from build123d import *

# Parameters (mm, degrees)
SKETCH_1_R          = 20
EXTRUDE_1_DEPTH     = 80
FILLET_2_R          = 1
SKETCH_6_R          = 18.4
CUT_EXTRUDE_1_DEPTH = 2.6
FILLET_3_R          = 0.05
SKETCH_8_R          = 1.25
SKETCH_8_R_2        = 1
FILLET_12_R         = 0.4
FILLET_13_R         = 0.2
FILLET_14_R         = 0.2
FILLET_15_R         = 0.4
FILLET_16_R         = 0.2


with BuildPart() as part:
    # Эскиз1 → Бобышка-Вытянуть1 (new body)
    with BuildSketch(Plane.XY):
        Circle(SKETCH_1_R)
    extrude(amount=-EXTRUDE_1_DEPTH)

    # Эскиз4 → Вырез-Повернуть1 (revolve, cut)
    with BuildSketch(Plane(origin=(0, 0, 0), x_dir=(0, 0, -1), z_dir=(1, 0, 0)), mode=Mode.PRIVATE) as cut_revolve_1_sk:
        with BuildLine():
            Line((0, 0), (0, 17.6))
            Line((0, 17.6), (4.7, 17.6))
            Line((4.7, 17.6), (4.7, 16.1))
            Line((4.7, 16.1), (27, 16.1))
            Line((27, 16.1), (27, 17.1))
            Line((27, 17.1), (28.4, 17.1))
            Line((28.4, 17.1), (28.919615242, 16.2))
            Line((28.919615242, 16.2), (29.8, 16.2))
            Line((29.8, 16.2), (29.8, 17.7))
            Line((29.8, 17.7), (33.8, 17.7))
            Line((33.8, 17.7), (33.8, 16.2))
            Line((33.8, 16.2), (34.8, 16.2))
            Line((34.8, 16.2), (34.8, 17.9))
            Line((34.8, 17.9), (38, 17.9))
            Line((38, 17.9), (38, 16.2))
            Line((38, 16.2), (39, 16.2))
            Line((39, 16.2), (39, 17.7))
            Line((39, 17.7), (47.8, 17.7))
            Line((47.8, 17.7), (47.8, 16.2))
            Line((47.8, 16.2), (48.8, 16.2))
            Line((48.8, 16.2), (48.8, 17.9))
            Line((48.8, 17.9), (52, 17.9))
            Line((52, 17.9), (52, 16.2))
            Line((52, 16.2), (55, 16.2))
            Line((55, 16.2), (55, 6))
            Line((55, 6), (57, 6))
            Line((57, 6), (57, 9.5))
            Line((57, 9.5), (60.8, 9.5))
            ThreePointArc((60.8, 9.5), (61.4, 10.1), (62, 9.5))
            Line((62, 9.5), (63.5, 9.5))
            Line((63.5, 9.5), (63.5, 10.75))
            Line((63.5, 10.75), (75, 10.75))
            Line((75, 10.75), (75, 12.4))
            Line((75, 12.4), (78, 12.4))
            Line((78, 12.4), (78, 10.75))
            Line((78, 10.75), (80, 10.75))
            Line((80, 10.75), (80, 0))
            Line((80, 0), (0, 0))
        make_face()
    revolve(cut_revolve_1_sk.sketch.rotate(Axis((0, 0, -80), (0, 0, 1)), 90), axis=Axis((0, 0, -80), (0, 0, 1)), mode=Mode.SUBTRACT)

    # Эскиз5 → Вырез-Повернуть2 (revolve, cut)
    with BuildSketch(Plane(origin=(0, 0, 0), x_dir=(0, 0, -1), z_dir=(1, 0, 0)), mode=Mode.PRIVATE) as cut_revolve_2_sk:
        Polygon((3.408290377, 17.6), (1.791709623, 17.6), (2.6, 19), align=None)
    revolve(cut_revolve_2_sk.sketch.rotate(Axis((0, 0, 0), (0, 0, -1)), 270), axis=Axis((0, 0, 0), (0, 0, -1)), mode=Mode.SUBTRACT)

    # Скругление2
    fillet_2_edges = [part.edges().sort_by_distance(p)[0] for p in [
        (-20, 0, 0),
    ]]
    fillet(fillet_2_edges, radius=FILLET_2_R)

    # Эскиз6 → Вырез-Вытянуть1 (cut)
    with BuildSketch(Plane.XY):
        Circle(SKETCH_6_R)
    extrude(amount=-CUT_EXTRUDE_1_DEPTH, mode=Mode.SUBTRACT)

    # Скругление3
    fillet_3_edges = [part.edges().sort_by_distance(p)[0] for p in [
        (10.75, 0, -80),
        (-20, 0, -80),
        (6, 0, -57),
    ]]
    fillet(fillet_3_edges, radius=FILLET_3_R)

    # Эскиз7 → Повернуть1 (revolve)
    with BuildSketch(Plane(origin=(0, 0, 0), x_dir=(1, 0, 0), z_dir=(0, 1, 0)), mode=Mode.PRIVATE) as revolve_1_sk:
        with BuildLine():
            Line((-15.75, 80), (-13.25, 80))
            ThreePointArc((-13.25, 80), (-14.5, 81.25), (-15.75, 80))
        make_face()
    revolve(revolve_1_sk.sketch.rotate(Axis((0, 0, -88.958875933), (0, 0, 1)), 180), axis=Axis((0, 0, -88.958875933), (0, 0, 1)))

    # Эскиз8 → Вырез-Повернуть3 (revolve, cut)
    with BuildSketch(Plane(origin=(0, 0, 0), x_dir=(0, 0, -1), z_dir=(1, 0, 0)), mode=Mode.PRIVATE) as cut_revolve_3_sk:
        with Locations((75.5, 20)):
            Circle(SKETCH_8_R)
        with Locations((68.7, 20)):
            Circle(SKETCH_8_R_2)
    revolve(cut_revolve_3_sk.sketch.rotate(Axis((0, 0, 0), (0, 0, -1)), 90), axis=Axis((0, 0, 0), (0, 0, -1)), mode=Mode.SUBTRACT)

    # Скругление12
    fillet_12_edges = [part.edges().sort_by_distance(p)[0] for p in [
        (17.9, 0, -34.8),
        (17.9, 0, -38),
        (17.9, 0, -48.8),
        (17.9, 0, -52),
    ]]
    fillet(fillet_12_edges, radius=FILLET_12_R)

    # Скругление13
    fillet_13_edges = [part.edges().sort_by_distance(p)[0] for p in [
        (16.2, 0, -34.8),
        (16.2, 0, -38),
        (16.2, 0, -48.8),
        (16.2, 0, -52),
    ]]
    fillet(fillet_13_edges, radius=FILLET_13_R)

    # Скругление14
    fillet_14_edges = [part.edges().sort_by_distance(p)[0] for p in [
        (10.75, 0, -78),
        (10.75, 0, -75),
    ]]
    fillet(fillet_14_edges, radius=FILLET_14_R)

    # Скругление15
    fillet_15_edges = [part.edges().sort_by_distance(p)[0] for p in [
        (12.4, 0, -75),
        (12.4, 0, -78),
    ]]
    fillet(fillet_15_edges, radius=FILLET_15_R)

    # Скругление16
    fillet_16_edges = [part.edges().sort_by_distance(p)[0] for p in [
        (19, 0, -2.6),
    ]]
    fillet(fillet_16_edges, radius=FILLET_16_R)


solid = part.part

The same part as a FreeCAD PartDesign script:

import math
import FreeCAD as App
import Part
import Sketcher

V = App.Vector
Q = App.Units.Quantity


def edges_at(feature, points):
    """Names of the edges that pass closest to the given points."""
    edges = feature.Shape.Edges
    near = lambda p: min(range(len(edges)), key=lambda i: edges[i].distToShape(Part.Vertex(*p))[0])
    return sorted({f"Edge{near(p) + 1}" for p in points})


def add_polygon(sketch, points):
    """Adds a closed chain of lines whose ends are joined by coincident constraints."""
    first, n = sketch.GeometryCount, len(points)
    for a, b in zip(points, points[1:] + points[:1]):
        sketch.addGeometry(Part.LineSegment(App.Vector(*a, 0), App.Vector(*b, 0)), False)
    for i in range(n):
        sketch.addConstraint(Sketcher.Constraint("Coincident", first + i, 2, first + (i + 1) % n, 1))

doc = App.newDocument("Part")
body = doc.addObject("PartDesign::Body", "Body")

# Sketch on XY plane
sketch1 = doc.addObject("Sketcher::SketchObject", "Sketch")
body.addObject(sketch1)
sketch1.AttachmentSupport = (doc.XY_Plane, [""])
sketch1.MapMode = "FlatFace"
sketch1.addGeometry(Part.Circle(V(0, 0, 0), V(0, 0, 1), 20), False)
sketch1.addConstraint(Sketcher.Constraint("Coincident", 0, 3, -1, 1))
sketch1.addConstraint(Sketcher.Constraint("Diameter", 0, Q("40 mm")))
pad1 = doc.addObject("PartDesign::Pad", "Pad")
body.addObject(pad1)
pad1.Profile = sketch1
pad1.Length = 80
pad1.Reversed = True

# Sketch on YZ plane
sketch2 = doc.addObject("Sketcher::SketchObject", "Sketch001")
body.addObject(sketch2)
sketch2.AttachmentSupport = (doc.YZ_Plane, [""])
sketch2.MapMode = "FlatFace"
sketch2.addGeometry(Part.LineSegment(V(17.6, 0, 0), V(0, 0, 0)), False)
sketch2.addGeometry(Part.LineSegment(V(0, 0, 0), V(0, -80, 0)), False)
sketch2.addGeometry(Part.LineSegment(V(0, -80, 0), V(10.8, -80, 0)), False)
sketch2.addGeometry(Part.LineSegment(V(10.8, -80, 0), V(10.8, -78, 0)), False)
sketch2.addGeometry(Part.LineSegment(V(10.8, -78, 0), V(12.4, -78, 0)), False)
sketch2.addGeometry(Part.LineSegment(V(12.4, -78, 0), V(12.4, -75, 0)), False)
sketch2.addGeometry(Part.LineSegment(V(12.4, -75, 0), V(10.8, -75, 0)), False)
sketch2.addGeometry(Part.LineSegment(V(10.8, -75, 0), V(10.8, -63.5, 0)), False)
sketch2.addGeometry(Part.LineSegment(V(10.8, -63.5, 0), V(9.5, -63.5, 0)), False)
sketch2.addGeometry(Part.LineSegment(V(9.5, -63.5, 0), V(9.5, -62, 0)), False)
sketch2.addGeometry(Part.ArcOfCircle(Part.Circle(V(9.5, -61.4, 0), V(0, 0, 1), 0.6), math.radians(-90), math.radians(90)), False)
sketch2.addGeometry(Part.LineSegment(V(9.5, -60.8, 0), V(9.5, -57, 0)), False)
sketch2.addGeometry(Part.LineSegment(V(9.5, -57, 0), V(6, -57, 0)), False)
sketch2.addGeometry(Part.LineSegment(V(6, -57, 0), V(6, -55, 0)), False)
sketch2.addGeometry(Part.LineSegment(V(6, -55, 0), V(16.2, -55, 0)), False)
sketch2.addGeometry(Part.LineSegment(V(16.2, -55, 0), V(16.2, -52, 0)), False)
sketch2.addGeometry(Part.LineSegment(V(16.2, -52, 0), V(17.9, -52, 0)), False)
sketch2.addGeometry(Part.LineSegment(V(17.9, -52, 0), V(17.9, -48.8, 0)), False)
sketch2.addGeometry(Part.LineSegment(V(17.9, -48.8, 0), V(16.2, -48.8, 0)), False)
sketch2.addGeometry(Part.LineSegment(V(16.2, -48.8, 0), V(16.2, -47.8, 0)), False)
sketch2.addGeometry(Part.LineSegment(V(16.2, -47.8, 0), V(17.7, -47.8, 0)), False)
sketch2.addGeometry(Part.LineSegment(V(17.7, -47.8, 0), V(17.7, -39, 0)), False)
sketch2.addGeometry(Part.LineSegment(V(17.7, -39, 0), V(16.2, -39, 0)), False)
sketch2.addGeometry(Part.LineSegment(V(16.2, -39, 0), V(16.2, -38, 0)), False)
sketch2.addGeometry(Part.LineSegment(V(16.2, -38, 0), V(17.9, -38, 0)), False)
sketch2.addGeometry(Part.LineSegment(V(17.9, -38, 0), V(17.9, -34.8, 0)), False)
sketch2.addGeometry(Part.LineSegment(V(17.9, -34.8, 0), V(16.2, -34.8, 0)), False)
sketch2.addGeometry(Part.LineSegment(V(16.2, -34.8, 0), V(16.2, -33.8, 0)), False)
sketch2.addGeometry(Part.LineSegment(V(16.2, -33.8, 0), V(17.7, -33.8, 0)), False)
sketch2.addGeometry(Part.LineSegment(V(17.7, -33.8, 0), V(17.7, -29.8, 0)), False)
sketch2.addGeometry(Part.LineSegment(V(17.7, -29.8, 0), V(16.2, -29.8, 0)), False)
sketch2.addGeometry(Part.LineSegment(V(16.2, -29.8, 0), V(16.2, -28.9, 0)), False)
sketch2.addGeometry(Part.LineSegment(V(16.2, -28.9, 0), V(17.1, -28.4, 0)), False)
sketch2.addGeometry(Part.LineSegment(V(17.1, -28.4, 0), V(17.1, -27, 0)), False)
sketch2.addGeometry(Part.LineSegment(V(17.1, -27, 0), V(16.1, -27, 0)), False)
sketch2.addGeometry(Part.LineSegment(V(16.1, -27, 0), V(16.1, -4.7, 0)), False)
sketch2.addGeometry(Part.LineSegment(V(16.1, -4.7, 0), V(17.6, -4.7, 0)), False)
sketch2.addGeometry(Part.LineSegment(V(17.6, -4.7, 0), V(17.6, 0, 0)), False)
sketch2.addConstraint(Sketcher.Constraint("Coincident", 0, 2, 1, 1))
sketch2.addConstraint(Sketcher.Constraint("Coincident", 1, 2, 2, 1))
sketch2.addConstraint(Sketcher.Constraint("Coincident", 2, 2, 3, 1))
sketch2.addConstraint(Sketcher.Constraint("Coincident", 3, 2, 4, 1))
sketch2.addConstraint(Sketcher.Constraint("Coincident", 4, 2, 5, 1))
sketch2.addConstraint(Sketcher.Constraint("Coincident", 5, 2, 6, 1))
sketch2.addConstraint(Sketcher.Constraint("Coincident", 6, 2, 7, 1))
sketch2.addConstraint(Sketcher.Constraint("Coincident", 7, 2, 8, 1))
sketch2.addConstraint(Sketcher.Constraint("Coincident", 8, 2, 9, 1))
sketch2.addConstraint(Sketcher.Constraint("Coincident", 9, 2, 10, 1))
sketch2.addConstraint(Sketcher.Constraint("Coincident", 10, 2, 11, 1))
sketch2.addConstraint(Sketcher.Constraint("Coincident", 11, 2, 12, 1))
sketch2.addConstraint(Sketcher.Constraint("Coincident", 12, 2, 13, 1))
sketch2.addConstraint(Sketcher.Constraint("Coincident", 13, 2, 14, 1))
sketch2.addConstraint(Sketcher.Constraint("Coincident", 14, 2, 15, 1))
sketch2.addConstraint(Sketcher.Constraint("Coincident", 15, 2, 16, 1))
sketch2.addConstraint(Sketcher.Constraint("Coincident", 16, 2, 17, 1))
sketch2.addConstraint(Sketcher.Constraint("Coincident", 17, 2, 18, 1))
sketch2.addConstraint(Sketcher.Constraint("Coincident", 18, 2, 19, 1))
sketch2.addConstraint(Sketcher.Constraint("Coincident", 19, 2, 20, 1))
sketch2.addConstraint(Sketcher.Constraint("Coincident", 20, 2, 21, 1))
sketch2.addConstraint(Sketcher.Constraint("Coincident", 21, 2, 22, 1))
sketch2.addConstraint(Sketcher.Constraint("Coincident", 22, 2, 23, 1))
sketch2.addConstraint(Sketcher.Constraint("Coincident", 23, 2, 24, 1))
sketch2.addConstraint(Sketcher.Constraint("Coincident", 24, 2, 25, 1))
sketch2.addConstraint(Sketcher.Constraint("Coincident", 25, 2, 26, 1))
sketch2.addConstraint(Sketcher.Constraint("Coincident", 26, 2, 27, 1))
sketch2.addConstraint(Sketcher.Constraint("Coincident", 27, 2, 28, 1))
sketch2.addConstraint(Sketcher.Constraint("Coincident", 28, 2, 29, 1))
sketch2.addConstraint(Sketcher.Constraint("Coincident", 29, 2, 30, 1))
sketch2.addConstraint(Sketcher.Constraint("Coincident", 30, 2, 31, 1))
sketch2.addConstraint(Sketcher.Constraint("Coincident", 31, 2, 32, 1))
sketch2.addConstraint(Sketcher.Constraint("Coincident", 32, 2, 33, 1))
sketch2.addConstraint(Sketcher.Constraint("Coincident", 33, 2, 34, 1))
sketch2.addConstraint(Sketcher.Constraint("Coincident", 34, 2, 35, 1))
sketch2.addConstraint(Sketcher.Constraint("Coincident", 35, 2, 36, 1))
sketch2.addConstraint(Sketcher.Constraint("Coincident", 36, 2, 37, 1))
sketch2.addConstraint(Sketcher.Constraint("Coincident", 37, 2, 0, 1))
sketch2.addConstraint(Sketcher.Constraint("Horizontal", 0))
sketch2.addConstraint(Sketcher.Constraint("Vertical", 1))
sketch2.addConstraint(Sketcher.Constraint("Horizontal", 2))
sketch2.addConstraint(Sketcher.Constraint("Vertical", 3))
sketch2.addConstraint(Sketcher.Constraint("Horizontal", 4))
sketch2.addConstraint(Sketcher.Constraint("Vertical", 5))
sketch2.addConstraint(Sketcher.Constraint("Horizontal", 6))
sketch2.addConstraint(Sketcher.Constraint("Vertical", 7))
sketch2.addConstraint(Sketcher.Constraint("Horizontal", 8))
sketch2.addConstraint(Sketcher.Constraint("Vertical", 9))
sketch2.addConstraint(Sketcher.Constraint("Vertical", 11))
sketch2.addConstraint(Sketcher.Constraint("Horizontal", 12))
sketch2.addConstraint(Sketcher.Constraint("Vertical", 13))
sketch2.addConstraint(Sketcher.Constraint("Horizontal", 14))
sketch2.addConstraint(Sketcher.Constraint("Vertical", 15))
sketch2.addConstraint(Sketcher.Constraint("Horizontal", 16))
sketch2.addConstraint(Sketcher.Constraint("Vertical", 17))
sketch2.addConstraint(Sketcher.Constraint("Horizontal", 18))
sketch2.addConstraint(Sketcher.Constraint("Vertical", 19))
sketch2.addConstraint(Sketcher.Constraint("Horizontal", 20))
sketch2.addConstraint(Sketcher.Constraint("Vertical", 21))
sketch2.addConstraint(Sketcher.Constraint("Horizontal", 22))
sketch2.addConstraint(Sketcher.Constraint("Vertical", 23))
sketch2.addConstraint(Sketcher.Constraint("Horizontal", 24))
sketch2.addConstraint(Sketcher.Constraint("Vertical", 25))
sketch2.addConstraint(Sketcher.Constraint("Horizontal", 26))
sketch2.addConstraint(Sketcher.Constraint("Vertical", 27))
sketch2.addConstraint(Sketcher.Constraint("Horizontal", 28))
sketch2.addConstraint(Sketcher.Constraint("Vertical", 29))
sketch2.addConstraint(Sketcher.Constraint("Horizontal", 30))
sketch2.addConstraint(Sketcher.Constraint("Vertical", 31))
sketch2.addConstraint(Sketcher.Constraint("Vertical", 33))
sketch2.addConstraint(Sketcher.Constraint("Horizontal", 34))
sketch2.addConstraint(Sketcher.Constraint("Vertical", 35))
sketch2.addConstraint(Sketcher.Constraint("Horizontal", 36))
sketch2.addConstraint(Sketcher.Constraint("Vertical", 37))
sketch2.addConstraint(Sketcher.Constraint("Coincident", 0, 2, -1, 1))
sketch2.addConstraint(Sketcher.Constraint("Vertical", 3, 2, 6, 2))
sketch2.addConstraint(Sketcher.Constraint("Vertical", 10, 3, 8, 2))
sketch2.addConstraint(Sketcher.Constraint("Vertical", 9, 2, 10, 2))
sketch2.addConstraint(Sketcher.Constraint("Vertical", 15, 2, 18, 2))
sketch2.addConstraint(Sketcher.Constraint("Vertical", 19, 2, 22, 2))
sketch2.addConstraint(Sketcher.Constraint("Vertical", 17, 2, 24, 2))
sketch2.addConstraint(Sketcher.Constraint("Vertical", 23, 2, 26, 2))
sketch2.addConstraint(Sketcher.Constraint("Vertical", 21, 2, 28, 2))
sketch2.addConstraint(Sketcher.Constraint("Vertical", 27, 2, 30, 2))
sketch2.addConstraint(Sketcher.Constraint("Equal", 30, 36))
sketch2.addConstraint(Sketcher.Constraint("Equal", 36, 9))
sketch2.addConstraint(Sketcher.Constraint("Equal", 3, 13))
sketch2.addConstraint(Sketcher.Constraint("Equal", 5, 15))
sketch2.addConstraint(Sketcher.Constraint("Equal", 34, 19))
sketch2.addConstraint(Sketcher.Constraint("Equal", 19, 23))
sketch2.addConstraint(Sketcher.Constraint("Equal", 17, 25))
sketch2.addConstraint(Sketcher.Constraint("Equal", 23, 27))
sketch2.addConstraint(Sketcher.Constraint("Radius", 10, Q("0.6 mm")))
sketch2.addConstraint(Sketcher.Constraint("DistanceX", 34, 2, 34, 1, Q("1 mm")))
sketch2.addConstraint(Sketcher.Constraint("DistanceY", 1, 2, 1, 1, Q("80 mm")))
sketch2.addConstraint(Sketcher.Constraint("DistanceY", 3, 1, 3, 2, Q("2 mm")))
sketch2.addConstraint(Sketcher.Constraint("DistanceY", 5, 1, 5, 2, Q("3 mm")))
sketch2.addConstraint(Sketcher.Constraint("DistanceY", 29, 1, 29, 2, Q("4 mm")))
sketch2.addConstraint(Sketcher.Constraint("Angle", 32, Q("30 deg")))
sketch2.addConstraint(Sketcher.Constraint("DistanceX", 0, 2, 0, 1, Q("17.6 mm")))
sketch2.addConstraint(Sketcher.Constraint("DistanceX", 12, 2, 12, 1, Q("3.5 mm")))
sketch2.addConstraint(Sketcher.Constraint("DistanceX", 14, 1, 14, 2, Q("10.2 mm")))
sketch2.addConstraint(Sketcher.Constraint("DistanceX", 16, 1, 16, 2, Q("1.7 mm")))
sketch2.addConstraint(Sketcher.Constraint("DistanceX", 20, 1, 20, 2, Q("1.5 mm")))
sketch2.addConstraint(Sketcher.Constraint("DistanceY", 7, 1, 7, 2, Q("11.5 mm")))
sketch2.addConstraint(Sketcher.Constraint("DistanceY", 11, 1, 11, 2, Q("3.8 mm")))
sketch2.addConstraint(Sketcher.Constraint("DistanceY", 17, 1, 17, 2, Q("3.2 mm")))
sketch2.addConstraint(Sketcher.Constraint("DistanceY", 21, 1, 21, 2, Q("8.8 mm")))
sketch2.addConstraint(Sketcher.Constraint("DistanceY", 33, 1, 33, 2, Q("1.4 mm")))
sketch2.addConstraint(Sketcher.Constraint("DistanceY", 35, 1, 35, 2, Q("22.3 mm")))
sketch2.addConstraint(Sketcher.Constraint("DistanceY", 37, 1, 37, 2, Q("4.7 mm")))
sketch2.addConstraint(Sketcher.Constraint("DistanceX", -1, 1, 12, 2, Q("6 mm")))
sketch2.addConstraint(Sketcher.Constraint("DistanceX", 2, 1, 2, 2, Q("10.75 mm")))
sketch2.addConstraint(Sketcher.Constraint("DistanceX", 4, 1, 4, 2, Q("1.65 mm")))
groove = doc.addObject("PartDesign::Groove", "Groove")
body.addObject(groove)
groove.Profile = sketch2
groove.ReferenceAxis = (sketch2, ["V_Axis"])
groove.Angle = 360

# Sketch on YZ plane
sketch3 = doc.addObject("Sketcher::SketchObject", "Sketch002")
body.addObject(sketch3)
sketch3.AttachmentSupport = (doc.YZ_Plane, [""])
sketch3.MapMode = "FlatFace"
add_polygon(sketch3, [(17.6, -1.8), (17.6, -3.4), (19, -2.6)])  # lines 0-2
sketch3.addConstraint(Sketcher.Constraint("Vertical", 0))
sketch3.addConstraint(Sketcher.Constraint("Equal", 1, 2))
sketch3.addConstraint(Sketcher.Constraint("Angle", 1, Q("30 deg")))
sketch3.addConstraint(Sketcher.Constraint("DistanceX", -1, 1, 1, 2, Q("19 mm")))
sketch3.addConstraint(Sketcher.Constraint("DistanceX", -1, 1, 0, 2, Q("17.6 mm")))
sketch3.addConstraint(Sketcher.Constraint("DistanceY", 1, 2, -1, 1, Q("2.6 mm")))
groove2 = doc.addObject("PartDesign::Groove", "Groove001")
body.addObject(groove2)
groove2.Profile = sketch3
groove2.ReferenceAxis = (sketch3, ["V_Axis"])
groove2.Angle = 360
doc.recompute()

fillet = doc.addObject("PartDesign::Fillet", "Fillet")
body.addObject(fillet)
fillet.Base = (groove2, edges_at(groove2, [(-20, 0, 0)]))
fillet.Radius = 1

# Sketch on XY plane
sketch4 = doc.addObject("Sketcher::SketchObject", "Sketch003")
body.addObject(sketch4)
sketch4.AttachmentSupport = (doc.XY_Plane, [""])
sketch4.MapMode = "FlatFace"
sketch4.addGeometry(Part.Circle(V(0, 0, 0), V(0, 0, 1), 18), False)
sketch4.addConstraint(Sketcher.Constraint("Coincident", 0, 3, -1, 1))
sketch4.addConstraint(Sketcher.Constraint("Diameter", 0, Q("36.8 mm")))
pocket1 = doc.addObject("PartDesign::Pocket", "Pocket")
body.addObject(pocket1)
pocket1.Profile = sketch4
pocket1.Length = 2.6
doc.recompute()

fillet2 = doc.addObject("PartDesign::Fillet", "Fillet001")
body.addObject(fillet2)
fillet2.Base = (pocket1, edges_at(pocket1, [(10.75, 0, -80), (-20, 0, -80), (6, 0, -57)]))
fillet2.Radius = 0.05

# Sketch on XZ plane
sketch5 = doc.addObject("Sketcher::SketchObject", "Sketch004")
body.addObject(sketch5)
sketch5.AttachmentSupport = (doc.XZ_Plane, [""])
sketch5.MapMode = "FlatFace"
sketch5.addGeometry(Part.LineSegment(V(-15.8, -80, 0), V(-13.2, -80, 0)), False)
sketch5.addGeometry(Part.ArcOfCircle(Part.Circle(V(-14.5, -80, 0), V(0, 0, 1), 1.2), math.radians(180), math.radians(360)), False)
sketch5.addConstraint(Sketcher.Constraint("Coincident", 0, 1, 1, 1))
sketch5.addConstraint(Sketcher.Constraint("Coincident", 1, 2, 0, 2))
sketch5.addConstraint(Sketcher.Constraint("Horizontal", 0))
sketch5.addConstraint(Sketcher.Constraint("Horizontal", 1, 3, 0, 1))
sketch5.addConstraint(Sketcher.Constraint("Radius", 1, Q("1.25 mm")))
sketch5.addConstraint(Sketcher.Constraint("DistanceY", 1, 3, -1, 1, Q("80 mm")))
sketch5.addConstraint(Sketcher.Constraint("DistanceX", 1, 3, -1, 1, Q("14.5 mm")))
revolution = doc.addObject("PartDesign::Revolution", "Revolution")
body.addObject(revolution)
revolution.Profile = sketch5
revolution.ReferenceAxis = (sketch5, ["V_Axis"])
revolution.Angle = 360

# Sketch on YZ plane
sketch6 = doc.addObject("Sketcher::SketchObject", "Sketch005")
body.addObject(sketch6)
sketch6.AttachmentSupport = (doc.YZ_Plane, [""])
sketch6.MapMode = "FlatFace"
sketch6.addGeometry(Part.Circle(V(20, -75.5, 0), V(0, 0, 1), 1.2), False)
sketch6.addGeometry(Part.Circle(V(20, -68.7, 0), V(0, 0, 1), 1), False)
sketch6.addConstraint(Sketcher.Constraint("Vertical", 0, 3, 1, 3))
sketch6.addConstraint(Sketcher.Constraint("Diameter", 1, Q("2 mm")))
sketch6.addConstraint(Sketcher.Constraint("Diameter", 0, Q("2.5 mm")))
sketch6.addConstraint(Sketcher.Constraint("DistanceX", -1, 1, 0, 3, Q("20 mm")))
sketch6.addConstraint(Sketcher.Constraint("DistanceY", 0, 3, -1, 1, Q("75.5 mm")))
sketch6.addConstraint(Sketcher.Constraint("DistanceY", 1, 3, -1, 1, Q("68.7 mm")))
groove3 = doc.addObject("PartDesign::Groove", "Groove002")
body.addObject(groove3)
groove3.Profile = sketch6
groove3.ReferenceAxis = (sketch6, ["V_Axis"])
groove3.Angle = 360
doc.recompute()

fillet3 = doc.addObject("PartDesign::Fillet", "Fillet002")
body.addObject(fillet3)
fillet3.Base = (groove3, edges_at(groove3, [
    (17.9, 0, -34.8),
    (17.9, 0, -38),
    (17.9, 0, -48.8),
    (17.9, 0, -52),
]))
fillet3.Radius = 0.4
doc.recompute()

fillet4 = doc.addObject("PartDesign::Fillet", "Fillet003")
body.addObject(fillet4)
fillet4.Base = (fillet3, edges_at(fillet3, [
    (16.2, 0, -34.8),
    (16.2, 0, -38),
    (16.2, 0, -48.8),
    (16.2, 0, -52),
]))
fillet4.Radius = 0.2
doc.recompute()

fillet5 = doc.addObject("PartDesign::Fillet", "Fillet004")
body.addObject(fillet5)
fillet5.Base = (fillet4, edges_at(fillet4, [(10.75, 0, -78), (10.75, 0, -75)]))
fillet5.Radius = 0.2
doc.recompute()

fillet6 = doc.addObject("PartDesign::Fillet", "Fillet005")
body.addObject(fillet6)
fillet6.Base = (fillet5, edges_at(fillet5, [(12.4, 0, -75), (12.4, 0, -78)]))
fillet6.Radius = 0.4
doc.recompute()

fillet7 = doc.addObject("PartDesign::Fillet", "Fillet006")
body.addObject(fillet7)
fillet7.Base = (fillet6, edges_at(fillet6, [(19, 0, -2.6)]))
fillet7.Radius = 0.2

doc.recompute()
